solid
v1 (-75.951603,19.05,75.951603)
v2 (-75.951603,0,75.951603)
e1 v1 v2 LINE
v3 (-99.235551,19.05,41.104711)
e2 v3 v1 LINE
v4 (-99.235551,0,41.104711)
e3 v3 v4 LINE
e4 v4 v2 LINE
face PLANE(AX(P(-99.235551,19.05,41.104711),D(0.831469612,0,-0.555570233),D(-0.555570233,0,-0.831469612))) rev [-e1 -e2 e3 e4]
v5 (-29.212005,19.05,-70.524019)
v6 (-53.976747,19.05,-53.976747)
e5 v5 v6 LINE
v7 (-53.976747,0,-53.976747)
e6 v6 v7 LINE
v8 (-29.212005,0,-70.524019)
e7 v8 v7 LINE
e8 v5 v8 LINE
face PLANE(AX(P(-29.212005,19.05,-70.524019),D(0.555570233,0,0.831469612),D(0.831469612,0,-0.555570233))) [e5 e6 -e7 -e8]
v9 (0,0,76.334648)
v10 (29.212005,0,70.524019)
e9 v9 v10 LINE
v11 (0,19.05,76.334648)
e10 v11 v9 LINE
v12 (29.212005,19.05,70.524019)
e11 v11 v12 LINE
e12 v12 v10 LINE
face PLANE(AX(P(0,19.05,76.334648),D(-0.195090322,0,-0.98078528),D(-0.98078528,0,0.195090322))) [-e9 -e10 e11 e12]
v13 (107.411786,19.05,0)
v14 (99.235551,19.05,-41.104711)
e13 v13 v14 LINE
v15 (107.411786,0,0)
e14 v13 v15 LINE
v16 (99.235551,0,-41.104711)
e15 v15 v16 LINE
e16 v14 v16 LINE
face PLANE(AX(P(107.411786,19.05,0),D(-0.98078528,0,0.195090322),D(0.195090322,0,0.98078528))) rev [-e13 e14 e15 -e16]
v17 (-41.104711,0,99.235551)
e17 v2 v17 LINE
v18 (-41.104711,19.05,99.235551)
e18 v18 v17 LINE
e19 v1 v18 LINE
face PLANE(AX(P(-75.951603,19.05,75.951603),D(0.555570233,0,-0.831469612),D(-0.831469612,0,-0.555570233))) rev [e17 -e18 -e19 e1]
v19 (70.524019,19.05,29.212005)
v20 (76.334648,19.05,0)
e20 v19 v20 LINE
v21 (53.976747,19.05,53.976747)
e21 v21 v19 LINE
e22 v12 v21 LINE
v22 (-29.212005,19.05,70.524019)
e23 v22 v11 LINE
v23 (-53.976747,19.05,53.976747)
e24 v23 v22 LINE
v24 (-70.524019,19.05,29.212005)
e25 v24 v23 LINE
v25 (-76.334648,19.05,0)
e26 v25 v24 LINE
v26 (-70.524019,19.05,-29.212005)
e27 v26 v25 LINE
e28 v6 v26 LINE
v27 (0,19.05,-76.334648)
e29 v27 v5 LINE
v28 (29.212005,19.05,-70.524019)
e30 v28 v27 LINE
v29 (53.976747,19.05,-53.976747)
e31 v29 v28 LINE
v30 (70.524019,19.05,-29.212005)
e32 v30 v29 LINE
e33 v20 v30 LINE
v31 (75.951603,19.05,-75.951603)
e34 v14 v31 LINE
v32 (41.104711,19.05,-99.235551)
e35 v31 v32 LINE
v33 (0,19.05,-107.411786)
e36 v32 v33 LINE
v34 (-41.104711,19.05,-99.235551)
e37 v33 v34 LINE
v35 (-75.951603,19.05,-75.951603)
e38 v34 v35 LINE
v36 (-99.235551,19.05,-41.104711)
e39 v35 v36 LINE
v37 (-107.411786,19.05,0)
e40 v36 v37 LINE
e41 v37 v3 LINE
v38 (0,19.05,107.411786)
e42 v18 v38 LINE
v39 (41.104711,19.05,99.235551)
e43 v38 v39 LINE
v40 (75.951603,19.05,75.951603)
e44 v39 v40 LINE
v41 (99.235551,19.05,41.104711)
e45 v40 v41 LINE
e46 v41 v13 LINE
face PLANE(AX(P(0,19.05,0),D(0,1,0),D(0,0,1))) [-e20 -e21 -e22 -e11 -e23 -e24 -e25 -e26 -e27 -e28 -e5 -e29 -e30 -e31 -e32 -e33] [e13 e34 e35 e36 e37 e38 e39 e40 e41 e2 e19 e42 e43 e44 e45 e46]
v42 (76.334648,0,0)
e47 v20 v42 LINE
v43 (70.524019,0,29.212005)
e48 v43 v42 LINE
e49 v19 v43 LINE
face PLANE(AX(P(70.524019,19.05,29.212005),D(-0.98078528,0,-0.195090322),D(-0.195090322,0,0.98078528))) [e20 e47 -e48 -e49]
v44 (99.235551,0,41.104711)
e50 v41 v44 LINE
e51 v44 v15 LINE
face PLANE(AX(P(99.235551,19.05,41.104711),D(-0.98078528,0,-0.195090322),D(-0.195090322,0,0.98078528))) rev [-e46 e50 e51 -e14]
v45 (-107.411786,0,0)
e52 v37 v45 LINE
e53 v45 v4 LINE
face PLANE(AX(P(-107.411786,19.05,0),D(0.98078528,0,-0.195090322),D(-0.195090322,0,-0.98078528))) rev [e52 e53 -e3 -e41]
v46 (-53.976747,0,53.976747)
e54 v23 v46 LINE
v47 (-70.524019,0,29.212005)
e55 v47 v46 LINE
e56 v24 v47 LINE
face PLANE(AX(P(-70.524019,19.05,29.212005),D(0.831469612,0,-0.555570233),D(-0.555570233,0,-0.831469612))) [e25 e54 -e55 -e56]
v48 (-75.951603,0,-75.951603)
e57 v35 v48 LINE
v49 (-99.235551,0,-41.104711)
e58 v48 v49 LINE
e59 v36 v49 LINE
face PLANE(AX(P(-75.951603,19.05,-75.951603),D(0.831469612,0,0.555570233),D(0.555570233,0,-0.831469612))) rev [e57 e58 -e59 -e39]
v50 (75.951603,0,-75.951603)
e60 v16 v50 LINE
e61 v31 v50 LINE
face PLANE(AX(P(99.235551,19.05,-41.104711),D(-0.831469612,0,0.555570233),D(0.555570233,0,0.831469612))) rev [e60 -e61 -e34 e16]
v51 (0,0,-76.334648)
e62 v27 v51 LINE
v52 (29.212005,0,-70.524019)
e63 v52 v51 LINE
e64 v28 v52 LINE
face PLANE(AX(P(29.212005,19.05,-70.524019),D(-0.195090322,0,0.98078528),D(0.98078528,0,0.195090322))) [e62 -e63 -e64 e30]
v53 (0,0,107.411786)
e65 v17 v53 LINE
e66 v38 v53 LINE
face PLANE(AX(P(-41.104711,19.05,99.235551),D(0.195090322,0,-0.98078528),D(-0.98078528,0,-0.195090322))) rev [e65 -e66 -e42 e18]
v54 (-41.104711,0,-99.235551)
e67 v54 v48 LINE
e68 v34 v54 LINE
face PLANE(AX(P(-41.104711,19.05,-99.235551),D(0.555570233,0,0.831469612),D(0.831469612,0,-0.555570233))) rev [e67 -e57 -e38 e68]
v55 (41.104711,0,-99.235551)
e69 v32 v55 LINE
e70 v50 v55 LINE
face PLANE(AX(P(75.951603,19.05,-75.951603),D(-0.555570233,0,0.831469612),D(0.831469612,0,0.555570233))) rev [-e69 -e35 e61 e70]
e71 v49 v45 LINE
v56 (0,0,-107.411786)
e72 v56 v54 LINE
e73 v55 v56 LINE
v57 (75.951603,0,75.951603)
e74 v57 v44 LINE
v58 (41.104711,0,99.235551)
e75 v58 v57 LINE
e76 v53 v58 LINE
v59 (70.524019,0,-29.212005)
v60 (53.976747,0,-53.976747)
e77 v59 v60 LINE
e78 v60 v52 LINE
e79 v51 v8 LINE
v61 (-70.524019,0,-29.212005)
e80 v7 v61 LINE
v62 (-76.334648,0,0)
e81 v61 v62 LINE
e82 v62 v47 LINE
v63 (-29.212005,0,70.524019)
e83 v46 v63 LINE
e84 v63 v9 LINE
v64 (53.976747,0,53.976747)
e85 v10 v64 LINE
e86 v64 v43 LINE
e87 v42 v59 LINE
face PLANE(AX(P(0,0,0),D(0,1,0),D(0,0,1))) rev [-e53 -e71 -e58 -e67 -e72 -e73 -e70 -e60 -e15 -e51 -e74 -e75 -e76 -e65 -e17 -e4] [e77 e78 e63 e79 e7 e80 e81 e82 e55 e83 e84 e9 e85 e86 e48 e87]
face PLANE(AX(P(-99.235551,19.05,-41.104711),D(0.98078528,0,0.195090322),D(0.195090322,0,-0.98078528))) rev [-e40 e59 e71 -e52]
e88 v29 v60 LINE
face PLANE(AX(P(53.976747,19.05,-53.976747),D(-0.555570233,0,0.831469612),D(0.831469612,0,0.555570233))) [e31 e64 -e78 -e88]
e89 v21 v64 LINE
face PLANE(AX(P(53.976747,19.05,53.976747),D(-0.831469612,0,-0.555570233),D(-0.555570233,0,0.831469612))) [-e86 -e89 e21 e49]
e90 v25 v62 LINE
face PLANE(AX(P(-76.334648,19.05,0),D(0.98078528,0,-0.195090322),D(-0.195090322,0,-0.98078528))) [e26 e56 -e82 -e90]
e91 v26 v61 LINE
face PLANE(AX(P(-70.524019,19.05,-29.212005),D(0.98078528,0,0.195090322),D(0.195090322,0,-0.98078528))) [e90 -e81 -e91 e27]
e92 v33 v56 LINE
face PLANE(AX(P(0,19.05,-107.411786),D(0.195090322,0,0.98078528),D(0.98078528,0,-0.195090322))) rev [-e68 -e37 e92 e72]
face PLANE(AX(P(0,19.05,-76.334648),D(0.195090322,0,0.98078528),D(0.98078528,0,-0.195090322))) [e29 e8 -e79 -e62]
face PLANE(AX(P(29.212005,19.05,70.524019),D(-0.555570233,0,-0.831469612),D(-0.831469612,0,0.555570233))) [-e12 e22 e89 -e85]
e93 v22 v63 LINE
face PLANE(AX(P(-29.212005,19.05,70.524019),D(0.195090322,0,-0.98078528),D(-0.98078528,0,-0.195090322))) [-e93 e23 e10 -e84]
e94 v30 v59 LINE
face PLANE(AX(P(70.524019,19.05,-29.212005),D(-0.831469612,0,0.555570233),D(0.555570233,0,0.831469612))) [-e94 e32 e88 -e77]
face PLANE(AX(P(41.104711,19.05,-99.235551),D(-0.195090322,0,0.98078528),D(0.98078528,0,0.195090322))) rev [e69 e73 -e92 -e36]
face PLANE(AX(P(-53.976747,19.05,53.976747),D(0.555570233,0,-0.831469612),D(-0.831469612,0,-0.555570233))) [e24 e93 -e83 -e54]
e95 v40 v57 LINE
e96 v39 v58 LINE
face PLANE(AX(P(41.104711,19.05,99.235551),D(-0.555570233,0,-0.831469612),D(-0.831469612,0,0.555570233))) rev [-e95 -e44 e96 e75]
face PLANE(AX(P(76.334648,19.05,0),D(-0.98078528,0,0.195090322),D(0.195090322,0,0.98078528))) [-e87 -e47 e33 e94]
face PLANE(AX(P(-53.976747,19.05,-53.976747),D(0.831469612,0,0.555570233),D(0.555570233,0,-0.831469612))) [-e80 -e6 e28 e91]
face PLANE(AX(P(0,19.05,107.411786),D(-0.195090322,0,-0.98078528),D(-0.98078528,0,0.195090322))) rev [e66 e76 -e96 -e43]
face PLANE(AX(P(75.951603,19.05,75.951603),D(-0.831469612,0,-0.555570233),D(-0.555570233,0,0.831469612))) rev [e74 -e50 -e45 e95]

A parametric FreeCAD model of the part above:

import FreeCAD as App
import Part
import Sketcher
from FreeCAD import Vector
Q = App.Units.Quantity


def add_polygon(sketch, points):
    """Adds a closed chain of lines whose ends are joined by coincident constraints."""
    first, n = sketch.GeometryCount, len(points)
    for a, b in zip(points, points[1:] + points[:1]):
        sketch.addGeometry(Part.LineSegment(App.Vector(*a, 0), App.Vector(*b, 0)), False)
    for i in range(n):
        sketch.addConstraint(Sketcher.Constraint("Coincident", first + i, 2, first + (i + 1) % n, 1))

doc = App.newDocument("Part")
body = doc.addObject("PartDesign::Body", "Body")

# Sketch on XZ plane
sketch1 = body.newObject("Sketcher::SketchObject", "Sketch")
sketch1.AttachmentSupport = (doc.getObject("XZ_Plane"), [""])
sketch1.MapMode = "FlatFace"
add_polygon(sketch1, [(107, 0), (99, -41), (76, -76), (41, -99), (0, -107), (-41, -99), (-76, -76), (-99, -41), (-107, 0), (-99, 41), (-76, 76), (-41, 99), (0, 107), (41, 99), (76, 76), (99, 41)])  # lines 0-15
add_polygon(sketch1, [(71, -29), (76, 0), (71, 29), (54, 54), (29, 71), (0, 76), (-29, 71), (-54, 54), (-71, 29), (-76, 0), (-71, -29), (-54, -54), (-29, -71), (0, -76), (29, -71), (54, -54)])  # lines 16-31
sketch1.addConstraint([
    Sketcher.Constraint("Symmetric", 0, 2, 8, 2, -1, 1),
    Sketcher.Constraint("Symmetric", 1, 2, 9, 2, -1, 1),
    Sketcher.Constraint("Symmetric", 2, 2, 10, 2, -1, 1),
    Sketcher.Constraint("Symmetric", 3, 2, 11, 2, -1, 1),
    Sketcher.Constraint("Symmetric", 4, 2, 12, 2, -1, 1),
    Sketcher.Constraint("Symmetric", 5, 2, 13, 2, -1, 1),
    Sketcher.Constraint("Symmetric", 6, 2, 14, 2, -1, 1),
    Sketcher.Constraint("Symmetric", 7, 2, 15, 2, -1, 1),
    Sketcher.Constraint("Symmetric", 16, 2, 24, 2, -1, 1),
    Sketcher.Constraint("Symmetric", 17, 2, 25, 2, -1, 1),
    Sketcher.Constraint("Symmetric", 18, 2, 26, 2, -1, 1),
    Sketcher.Constraint("Symmetric", 19, 2, 27, 2, -1, 1),
    Sketcher.Constraint("Symmetric", 20, 2, 28, 2, -1, 1),
    Sketcher.Constraint("Symmetric", 21, 2, 29, 2, -1, 1),
    Sketcher.Constraint("Symmetric", 22, 2, 30, 2, -1, 1),
    Sketcher.Constraint("Symmetric", 23, 2, 31, 2, -1, 1),
    Sketcher.Constraint("Symmetric", 2, 2, 4, 2, -2),
    Sketcher.Constraint("Symmetric", 1, 2, 5, 2, -2),
    Sketcher.Constraint("Symmetric", 0, 2, 6, 2, -2),
    Sketcher.Constraint("Symmetric", 19, 2, 21, 2, -2),
    Sketcher.Constraint("Symmetric", 18, 2, 22, 2, -2),
    Sketcher.Constraint("Symmetric", 17, 2, 23, 2, -2),
    Sketcher.Constraint("PointOnObject", 3, 2, -2),
    Sketcher.Constraint("PointOnObject", 7, 2, -1),
    Sketcher.Constraint("PointOnObject", 16, 2, -1),
    Sketcher.Constraint("PointOnObject", 20, 2, -2),
    Sketcher.Constraint("Perpendicular", 0, 4),
    Sketcher.Constraint("Perpendicular", 1, 5),
    Sketcher.Constraint("Perpendicular", 12, 16),
    Sketcher.Constraint("Parallel", 14, 18),
    Sketcher.Constraint("Parallel", 13, 19),
    Sketcher.Constraint("Perpendicular", 16, 20),
    Sketcher.Constraint("Equal", 0, 1),
    Sketcher.Constraint("Equal", 1, 2),
    Sketcher.Constraint("Equal", 2, 3),
    Sketcher.Constraint("Equal", 17, 18),
    Sketcher.Constraint("Equal", 18, 19),
    Sketcher.Constraint("Equal", 19, 20),
    Sketcher.Constraint("Distance", 0, Q("1.65 in")),
    Sketcher.Constraint("Angle", 0, Q("-101.25 deg")),
    Sketcher.Constraint("Angle", 1, Q("-123.75 deg")),
    Sketcher.Constraint("DistanceX", 18, 2, 16, 2, 22.357901),
])
pad1 = body.newObject("PartDesign::Pad", "Pad")
pad1.Profile = sketch1
pad1.Length = Q("0.75 in")
pad1.Reversed = True

doc.recompute()
